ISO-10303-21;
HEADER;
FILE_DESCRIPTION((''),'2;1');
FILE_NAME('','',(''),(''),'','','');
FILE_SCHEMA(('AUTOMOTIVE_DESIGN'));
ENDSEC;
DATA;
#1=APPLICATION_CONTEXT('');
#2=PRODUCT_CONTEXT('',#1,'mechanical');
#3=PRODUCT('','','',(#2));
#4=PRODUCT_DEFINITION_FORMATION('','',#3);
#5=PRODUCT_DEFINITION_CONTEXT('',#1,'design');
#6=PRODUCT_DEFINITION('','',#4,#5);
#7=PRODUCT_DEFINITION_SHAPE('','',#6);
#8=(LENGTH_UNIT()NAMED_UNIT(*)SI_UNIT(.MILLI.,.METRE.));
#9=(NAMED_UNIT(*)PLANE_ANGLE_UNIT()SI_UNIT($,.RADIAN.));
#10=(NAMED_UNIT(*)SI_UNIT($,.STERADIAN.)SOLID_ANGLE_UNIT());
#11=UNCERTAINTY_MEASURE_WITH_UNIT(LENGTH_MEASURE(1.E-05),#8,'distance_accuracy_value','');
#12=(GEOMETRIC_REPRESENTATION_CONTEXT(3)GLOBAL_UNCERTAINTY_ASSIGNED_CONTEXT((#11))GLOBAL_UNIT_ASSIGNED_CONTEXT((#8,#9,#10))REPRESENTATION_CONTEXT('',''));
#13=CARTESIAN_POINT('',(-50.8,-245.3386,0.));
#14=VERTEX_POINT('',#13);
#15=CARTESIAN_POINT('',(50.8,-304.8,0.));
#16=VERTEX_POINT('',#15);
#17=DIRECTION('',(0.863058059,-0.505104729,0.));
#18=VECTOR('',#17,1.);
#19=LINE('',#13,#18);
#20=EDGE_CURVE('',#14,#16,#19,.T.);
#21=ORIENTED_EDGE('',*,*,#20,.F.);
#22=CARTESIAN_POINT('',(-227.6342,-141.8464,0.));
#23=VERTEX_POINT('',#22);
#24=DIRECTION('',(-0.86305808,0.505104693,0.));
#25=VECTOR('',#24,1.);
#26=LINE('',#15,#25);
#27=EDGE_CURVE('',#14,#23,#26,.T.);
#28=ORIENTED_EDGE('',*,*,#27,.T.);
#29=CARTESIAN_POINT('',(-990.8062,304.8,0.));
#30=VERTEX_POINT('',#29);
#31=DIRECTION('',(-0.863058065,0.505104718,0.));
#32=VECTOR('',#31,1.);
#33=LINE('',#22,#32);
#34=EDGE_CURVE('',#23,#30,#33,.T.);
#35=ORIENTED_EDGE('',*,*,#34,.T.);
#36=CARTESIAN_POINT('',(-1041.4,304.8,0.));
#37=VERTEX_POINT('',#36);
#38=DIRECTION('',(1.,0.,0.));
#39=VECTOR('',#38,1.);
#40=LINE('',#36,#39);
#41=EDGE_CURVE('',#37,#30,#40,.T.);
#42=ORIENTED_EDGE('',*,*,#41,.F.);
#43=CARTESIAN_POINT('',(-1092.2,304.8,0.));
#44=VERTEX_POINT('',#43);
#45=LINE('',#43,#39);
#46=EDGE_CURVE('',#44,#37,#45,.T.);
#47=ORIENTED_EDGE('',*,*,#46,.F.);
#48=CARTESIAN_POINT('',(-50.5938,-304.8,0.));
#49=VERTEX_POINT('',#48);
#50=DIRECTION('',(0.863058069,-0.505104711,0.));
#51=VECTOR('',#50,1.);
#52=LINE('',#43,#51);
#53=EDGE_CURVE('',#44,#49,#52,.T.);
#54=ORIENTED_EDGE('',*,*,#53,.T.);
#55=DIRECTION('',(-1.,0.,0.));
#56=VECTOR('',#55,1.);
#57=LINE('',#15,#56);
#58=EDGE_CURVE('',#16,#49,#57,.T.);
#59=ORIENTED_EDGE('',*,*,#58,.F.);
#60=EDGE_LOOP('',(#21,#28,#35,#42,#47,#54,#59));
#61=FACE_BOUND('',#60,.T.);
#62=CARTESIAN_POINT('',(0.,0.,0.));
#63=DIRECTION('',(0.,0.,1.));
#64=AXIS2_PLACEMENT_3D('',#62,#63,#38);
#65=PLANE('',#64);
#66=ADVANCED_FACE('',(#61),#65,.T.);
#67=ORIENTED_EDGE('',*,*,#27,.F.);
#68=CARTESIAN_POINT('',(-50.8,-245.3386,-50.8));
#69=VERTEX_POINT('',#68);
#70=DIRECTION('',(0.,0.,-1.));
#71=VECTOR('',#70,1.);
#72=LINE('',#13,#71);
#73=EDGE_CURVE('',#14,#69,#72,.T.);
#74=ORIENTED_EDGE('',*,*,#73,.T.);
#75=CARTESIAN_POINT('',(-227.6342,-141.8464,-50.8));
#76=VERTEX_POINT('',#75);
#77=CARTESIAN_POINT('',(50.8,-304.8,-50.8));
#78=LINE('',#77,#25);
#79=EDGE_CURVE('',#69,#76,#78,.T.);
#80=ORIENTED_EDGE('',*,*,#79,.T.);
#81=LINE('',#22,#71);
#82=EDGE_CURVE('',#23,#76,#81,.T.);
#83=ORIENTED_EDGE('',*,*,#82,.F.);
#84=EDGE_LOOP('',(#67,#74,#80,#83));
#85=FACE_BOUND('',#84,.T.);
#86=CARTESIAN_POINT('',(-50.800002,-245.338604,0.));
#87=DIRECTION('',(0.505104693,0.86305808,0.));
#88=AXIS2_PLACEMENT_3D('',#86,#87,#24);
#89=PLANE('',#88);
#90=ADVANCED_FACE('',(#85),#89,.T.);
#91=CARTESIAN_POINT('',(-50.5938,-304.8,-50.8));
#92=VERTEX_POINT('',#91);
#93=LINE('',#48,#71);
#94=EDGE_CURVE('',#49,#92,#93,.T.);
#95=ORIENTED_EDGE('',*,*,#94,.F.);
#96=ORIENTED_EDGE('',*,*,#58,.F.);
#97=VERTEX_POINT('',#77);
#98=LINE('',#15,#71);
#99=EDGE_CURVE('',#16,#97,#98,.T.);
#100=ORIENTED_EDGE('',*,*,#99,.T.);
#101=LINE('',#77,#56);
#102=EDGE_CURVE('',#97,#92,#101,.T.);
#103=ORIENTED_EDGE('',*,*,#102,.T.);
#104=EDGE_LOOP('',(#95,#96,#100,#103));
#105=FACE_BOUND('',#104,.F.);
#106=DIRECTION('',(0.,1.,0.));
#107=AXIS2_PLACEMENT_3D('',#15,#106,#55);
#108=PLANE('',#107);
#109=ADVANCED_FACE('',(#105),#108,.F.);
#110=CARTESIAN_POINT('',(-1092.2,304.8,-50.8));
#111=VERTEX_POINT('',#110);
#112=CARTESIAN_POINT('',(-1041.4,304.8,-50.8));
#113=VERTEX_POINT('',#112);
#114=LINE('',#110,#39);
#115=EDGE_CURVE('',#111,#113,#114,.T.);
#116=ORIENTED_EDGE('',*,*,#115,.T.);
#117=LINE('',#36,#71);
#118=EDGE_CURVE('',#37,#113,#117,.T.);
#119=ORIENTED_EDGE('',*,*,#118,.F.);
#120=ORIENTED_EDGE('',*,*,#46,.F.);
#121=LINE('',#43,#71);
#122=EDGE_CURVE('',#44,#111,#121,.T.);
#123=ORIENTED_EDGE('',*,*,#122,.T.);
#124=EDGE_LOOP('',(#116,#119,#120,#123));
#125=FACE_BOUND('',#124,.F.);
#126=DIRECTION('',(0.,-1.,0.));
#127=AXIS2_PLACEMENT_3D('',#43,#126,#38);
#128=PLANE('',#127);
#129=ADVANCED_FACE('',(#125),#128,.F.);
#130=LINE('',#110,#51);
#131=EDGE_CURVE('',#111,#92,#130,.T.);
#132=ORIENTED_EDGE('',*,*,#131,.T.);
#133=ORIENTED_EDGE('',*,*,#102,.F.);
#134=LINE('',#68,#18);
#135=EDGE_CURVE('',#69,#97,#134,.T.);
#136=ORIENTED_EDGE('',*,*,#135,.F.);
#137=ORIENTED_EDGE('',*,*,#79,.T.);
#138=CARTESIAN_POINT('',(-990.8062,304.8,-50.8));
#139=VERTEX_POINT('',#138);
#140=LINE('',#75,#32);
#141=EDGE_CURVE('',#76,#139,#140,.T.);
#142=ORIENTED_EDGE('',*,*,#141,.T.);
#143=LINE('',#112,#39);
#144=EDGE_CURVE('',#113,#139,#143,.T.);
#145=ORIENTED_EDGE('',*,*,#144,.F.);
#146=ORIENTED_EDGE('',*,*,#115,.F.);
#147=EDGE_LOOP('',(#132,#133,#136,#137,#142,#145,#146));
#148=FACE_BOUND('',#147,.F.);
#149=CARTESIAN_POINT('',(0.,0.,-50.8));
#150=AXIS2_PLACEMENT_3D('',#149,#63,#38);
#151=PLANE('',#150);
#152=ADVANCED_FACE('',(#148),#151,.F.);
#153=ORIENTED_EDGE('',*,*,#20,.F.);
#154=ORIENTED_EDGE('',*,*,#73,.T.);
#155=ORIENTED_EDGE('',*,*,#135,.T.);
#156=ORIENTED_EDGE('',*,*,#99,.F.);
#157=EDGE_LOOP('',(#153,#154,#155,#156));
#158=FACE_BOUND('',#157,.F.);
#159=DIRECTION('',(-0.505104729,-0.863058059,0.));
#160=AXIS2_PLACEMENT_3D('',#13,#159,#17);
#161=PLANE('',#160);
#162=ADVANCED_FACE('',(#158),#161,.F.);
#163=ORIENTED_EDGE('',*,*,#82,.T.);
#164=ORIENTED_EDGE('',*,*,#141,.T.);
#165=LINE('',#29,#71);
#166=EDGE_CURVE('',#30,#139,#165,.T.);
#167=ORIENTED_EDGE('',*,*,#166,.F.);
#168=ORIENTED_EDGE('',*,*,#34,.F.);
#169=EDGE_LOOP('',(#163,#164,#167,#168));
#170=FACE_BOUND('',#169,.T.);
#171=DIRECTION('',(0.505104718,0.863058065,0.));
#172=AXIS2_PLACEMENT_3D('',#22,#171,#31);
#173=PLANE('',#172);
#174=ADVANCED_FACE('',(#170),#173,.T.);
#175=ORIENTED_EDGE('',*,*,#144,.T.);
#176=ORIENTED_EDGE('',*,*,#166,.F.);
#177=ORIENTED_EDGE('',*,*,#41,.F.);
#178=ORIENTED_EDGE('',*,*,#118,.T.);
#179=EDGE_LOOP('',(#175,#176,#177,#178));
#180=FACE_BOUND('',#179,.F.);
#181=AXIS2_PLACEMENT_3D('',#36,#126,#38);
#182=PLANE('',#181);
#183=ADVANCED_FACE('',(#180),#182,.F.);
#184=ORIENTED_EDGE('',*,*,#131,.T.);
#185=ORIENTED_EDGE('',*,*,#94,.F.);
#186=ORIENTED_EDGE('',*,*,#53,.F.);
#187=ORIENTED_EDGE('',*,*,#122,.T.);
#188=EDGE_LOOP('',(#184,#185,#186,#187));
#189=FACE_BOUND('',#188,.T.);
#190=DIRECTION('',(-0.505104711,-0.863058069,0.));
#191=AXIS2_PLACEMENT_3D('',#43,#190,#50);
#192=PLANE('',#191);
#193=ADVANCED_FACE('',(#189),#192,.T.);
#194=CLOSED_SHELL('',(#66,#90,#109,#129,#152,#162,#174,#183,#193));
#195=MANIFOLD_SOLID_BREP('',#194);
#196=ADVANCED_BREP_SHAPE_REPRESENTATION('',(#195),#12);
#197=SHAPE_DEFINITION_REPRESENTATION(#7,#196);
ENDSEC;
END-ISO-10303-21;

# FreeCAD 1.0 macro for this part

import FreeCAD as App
import Part
import Sketcher

V = App.Vector
Q = App.Units.Quantity

doc = App.newDocument("Part")
body = doc.addObject("PartDesign::Body", "Body")

# Sketch on XY plane
sketch1 = body.newObject("Sketcher::SketchObject", "Sketch")
sketch1.AttachmentSupport = (doc.getObject("XY_Plane"), [""])
sketch1.MapMode = "FlatFace"
sketch1.addGeometry(Part.LineSegment(V(-990.8062, 304.8, 0), V(-1092.2, 304.8, 0)), False)
sketch1.addGeometry(Part.LineSegment(V(-1092.2, 304.8, 0), V(-50.5938, -304.8, 0)), False)
sketch1.addGeometry(Part.LineSegment(V(-50.5938, -304.8, 0), V(50.8, -304.8, 0)), False)
sketch1.addGeometry(Part.LineSegment(V(50.8, -304.8, 0), V(-50.8, -245.3386, 0)), False)
sketch1.addGeometry(Part.LineSegment(V(-50.800002, -245.338604, 0), V(-227.6342, -141.8464, 0)), False)
sketch1.addGeometry(Part.LineSegment(V(-227.6342, -141.8464, 0), V(-990.8062, 304.8, 0)), False)
sketch1.addConstraint(Sketcher.Constraint("Coincident", 0, 2, 1, 1))
sketch1.addConstraint(Sketcher.Constraint("Coincident", 1, 2, 2, 1))
sketch1.addConstraint(Sketcher.Constraint("Coincident", 2, 2, 3, 1))
sketch1.addConstraint(Sketcher.Constraint("Coincident", 3, 2, 4, 1))
sketch1.addConstraint(Sketcher.Constraint("Coincident", 4, 2, 5, 1))
sketch1.addConstraint(Sketcher.Constraint("Coincident", 5, 2, 0, 1))
sketch1.addConstraint(Sketcher.Constraint("Horizontal", 0))
sketch1.addConstraint(Sketcher.Constraint("Horizontal", 2))
sketch1.addConstraint(Sketcher.Constraint("Parallel", 1, 3))
sketch1.addConstraint(Sketcher.Constraint("Parallel", 3, 4))
sketch1.addConstraint(Sketcher.Constraint("Parallel", 4, 5))
sketch1.addConstraint(Sketcher.Constraint("DistanceX", 0, 2, -1, 1, Q("43 in")))
sketch1.addConstraint(Sketcher.Constraint("DistanceY", -1, 1, 0, 2, Q("12 in")))
sketch1.addConstraint(Sketcher.Constraint("DistanceY", 1, 2, -1, 1, Q("12 in")))
sketch1.addConstraint(Sketcher.Constraint("DistanceX", -1, 1, 2, 2, Q("2 in")))
sketch1.addConstraint(Sketcher.Constraint("DistanceX", 3, 2, -1, 1, Q("2 in")))
sketch1.addConstraint(Sketcher.Constraint("DistanceY", 3, 2, -1, 1, Q("9.659 in")))
sketch1.addConstraint(Sketcher.Constraint("DistanceY", 4, 2, -1, 1, Q("5.5845 in")))
pad1 = body.newObject("PartDesign::Pad", "Pad")
pad1.Profile = sketch1
pad1.Length = Q("2 in")
pad1.Reversed = True

doc.recompute()
